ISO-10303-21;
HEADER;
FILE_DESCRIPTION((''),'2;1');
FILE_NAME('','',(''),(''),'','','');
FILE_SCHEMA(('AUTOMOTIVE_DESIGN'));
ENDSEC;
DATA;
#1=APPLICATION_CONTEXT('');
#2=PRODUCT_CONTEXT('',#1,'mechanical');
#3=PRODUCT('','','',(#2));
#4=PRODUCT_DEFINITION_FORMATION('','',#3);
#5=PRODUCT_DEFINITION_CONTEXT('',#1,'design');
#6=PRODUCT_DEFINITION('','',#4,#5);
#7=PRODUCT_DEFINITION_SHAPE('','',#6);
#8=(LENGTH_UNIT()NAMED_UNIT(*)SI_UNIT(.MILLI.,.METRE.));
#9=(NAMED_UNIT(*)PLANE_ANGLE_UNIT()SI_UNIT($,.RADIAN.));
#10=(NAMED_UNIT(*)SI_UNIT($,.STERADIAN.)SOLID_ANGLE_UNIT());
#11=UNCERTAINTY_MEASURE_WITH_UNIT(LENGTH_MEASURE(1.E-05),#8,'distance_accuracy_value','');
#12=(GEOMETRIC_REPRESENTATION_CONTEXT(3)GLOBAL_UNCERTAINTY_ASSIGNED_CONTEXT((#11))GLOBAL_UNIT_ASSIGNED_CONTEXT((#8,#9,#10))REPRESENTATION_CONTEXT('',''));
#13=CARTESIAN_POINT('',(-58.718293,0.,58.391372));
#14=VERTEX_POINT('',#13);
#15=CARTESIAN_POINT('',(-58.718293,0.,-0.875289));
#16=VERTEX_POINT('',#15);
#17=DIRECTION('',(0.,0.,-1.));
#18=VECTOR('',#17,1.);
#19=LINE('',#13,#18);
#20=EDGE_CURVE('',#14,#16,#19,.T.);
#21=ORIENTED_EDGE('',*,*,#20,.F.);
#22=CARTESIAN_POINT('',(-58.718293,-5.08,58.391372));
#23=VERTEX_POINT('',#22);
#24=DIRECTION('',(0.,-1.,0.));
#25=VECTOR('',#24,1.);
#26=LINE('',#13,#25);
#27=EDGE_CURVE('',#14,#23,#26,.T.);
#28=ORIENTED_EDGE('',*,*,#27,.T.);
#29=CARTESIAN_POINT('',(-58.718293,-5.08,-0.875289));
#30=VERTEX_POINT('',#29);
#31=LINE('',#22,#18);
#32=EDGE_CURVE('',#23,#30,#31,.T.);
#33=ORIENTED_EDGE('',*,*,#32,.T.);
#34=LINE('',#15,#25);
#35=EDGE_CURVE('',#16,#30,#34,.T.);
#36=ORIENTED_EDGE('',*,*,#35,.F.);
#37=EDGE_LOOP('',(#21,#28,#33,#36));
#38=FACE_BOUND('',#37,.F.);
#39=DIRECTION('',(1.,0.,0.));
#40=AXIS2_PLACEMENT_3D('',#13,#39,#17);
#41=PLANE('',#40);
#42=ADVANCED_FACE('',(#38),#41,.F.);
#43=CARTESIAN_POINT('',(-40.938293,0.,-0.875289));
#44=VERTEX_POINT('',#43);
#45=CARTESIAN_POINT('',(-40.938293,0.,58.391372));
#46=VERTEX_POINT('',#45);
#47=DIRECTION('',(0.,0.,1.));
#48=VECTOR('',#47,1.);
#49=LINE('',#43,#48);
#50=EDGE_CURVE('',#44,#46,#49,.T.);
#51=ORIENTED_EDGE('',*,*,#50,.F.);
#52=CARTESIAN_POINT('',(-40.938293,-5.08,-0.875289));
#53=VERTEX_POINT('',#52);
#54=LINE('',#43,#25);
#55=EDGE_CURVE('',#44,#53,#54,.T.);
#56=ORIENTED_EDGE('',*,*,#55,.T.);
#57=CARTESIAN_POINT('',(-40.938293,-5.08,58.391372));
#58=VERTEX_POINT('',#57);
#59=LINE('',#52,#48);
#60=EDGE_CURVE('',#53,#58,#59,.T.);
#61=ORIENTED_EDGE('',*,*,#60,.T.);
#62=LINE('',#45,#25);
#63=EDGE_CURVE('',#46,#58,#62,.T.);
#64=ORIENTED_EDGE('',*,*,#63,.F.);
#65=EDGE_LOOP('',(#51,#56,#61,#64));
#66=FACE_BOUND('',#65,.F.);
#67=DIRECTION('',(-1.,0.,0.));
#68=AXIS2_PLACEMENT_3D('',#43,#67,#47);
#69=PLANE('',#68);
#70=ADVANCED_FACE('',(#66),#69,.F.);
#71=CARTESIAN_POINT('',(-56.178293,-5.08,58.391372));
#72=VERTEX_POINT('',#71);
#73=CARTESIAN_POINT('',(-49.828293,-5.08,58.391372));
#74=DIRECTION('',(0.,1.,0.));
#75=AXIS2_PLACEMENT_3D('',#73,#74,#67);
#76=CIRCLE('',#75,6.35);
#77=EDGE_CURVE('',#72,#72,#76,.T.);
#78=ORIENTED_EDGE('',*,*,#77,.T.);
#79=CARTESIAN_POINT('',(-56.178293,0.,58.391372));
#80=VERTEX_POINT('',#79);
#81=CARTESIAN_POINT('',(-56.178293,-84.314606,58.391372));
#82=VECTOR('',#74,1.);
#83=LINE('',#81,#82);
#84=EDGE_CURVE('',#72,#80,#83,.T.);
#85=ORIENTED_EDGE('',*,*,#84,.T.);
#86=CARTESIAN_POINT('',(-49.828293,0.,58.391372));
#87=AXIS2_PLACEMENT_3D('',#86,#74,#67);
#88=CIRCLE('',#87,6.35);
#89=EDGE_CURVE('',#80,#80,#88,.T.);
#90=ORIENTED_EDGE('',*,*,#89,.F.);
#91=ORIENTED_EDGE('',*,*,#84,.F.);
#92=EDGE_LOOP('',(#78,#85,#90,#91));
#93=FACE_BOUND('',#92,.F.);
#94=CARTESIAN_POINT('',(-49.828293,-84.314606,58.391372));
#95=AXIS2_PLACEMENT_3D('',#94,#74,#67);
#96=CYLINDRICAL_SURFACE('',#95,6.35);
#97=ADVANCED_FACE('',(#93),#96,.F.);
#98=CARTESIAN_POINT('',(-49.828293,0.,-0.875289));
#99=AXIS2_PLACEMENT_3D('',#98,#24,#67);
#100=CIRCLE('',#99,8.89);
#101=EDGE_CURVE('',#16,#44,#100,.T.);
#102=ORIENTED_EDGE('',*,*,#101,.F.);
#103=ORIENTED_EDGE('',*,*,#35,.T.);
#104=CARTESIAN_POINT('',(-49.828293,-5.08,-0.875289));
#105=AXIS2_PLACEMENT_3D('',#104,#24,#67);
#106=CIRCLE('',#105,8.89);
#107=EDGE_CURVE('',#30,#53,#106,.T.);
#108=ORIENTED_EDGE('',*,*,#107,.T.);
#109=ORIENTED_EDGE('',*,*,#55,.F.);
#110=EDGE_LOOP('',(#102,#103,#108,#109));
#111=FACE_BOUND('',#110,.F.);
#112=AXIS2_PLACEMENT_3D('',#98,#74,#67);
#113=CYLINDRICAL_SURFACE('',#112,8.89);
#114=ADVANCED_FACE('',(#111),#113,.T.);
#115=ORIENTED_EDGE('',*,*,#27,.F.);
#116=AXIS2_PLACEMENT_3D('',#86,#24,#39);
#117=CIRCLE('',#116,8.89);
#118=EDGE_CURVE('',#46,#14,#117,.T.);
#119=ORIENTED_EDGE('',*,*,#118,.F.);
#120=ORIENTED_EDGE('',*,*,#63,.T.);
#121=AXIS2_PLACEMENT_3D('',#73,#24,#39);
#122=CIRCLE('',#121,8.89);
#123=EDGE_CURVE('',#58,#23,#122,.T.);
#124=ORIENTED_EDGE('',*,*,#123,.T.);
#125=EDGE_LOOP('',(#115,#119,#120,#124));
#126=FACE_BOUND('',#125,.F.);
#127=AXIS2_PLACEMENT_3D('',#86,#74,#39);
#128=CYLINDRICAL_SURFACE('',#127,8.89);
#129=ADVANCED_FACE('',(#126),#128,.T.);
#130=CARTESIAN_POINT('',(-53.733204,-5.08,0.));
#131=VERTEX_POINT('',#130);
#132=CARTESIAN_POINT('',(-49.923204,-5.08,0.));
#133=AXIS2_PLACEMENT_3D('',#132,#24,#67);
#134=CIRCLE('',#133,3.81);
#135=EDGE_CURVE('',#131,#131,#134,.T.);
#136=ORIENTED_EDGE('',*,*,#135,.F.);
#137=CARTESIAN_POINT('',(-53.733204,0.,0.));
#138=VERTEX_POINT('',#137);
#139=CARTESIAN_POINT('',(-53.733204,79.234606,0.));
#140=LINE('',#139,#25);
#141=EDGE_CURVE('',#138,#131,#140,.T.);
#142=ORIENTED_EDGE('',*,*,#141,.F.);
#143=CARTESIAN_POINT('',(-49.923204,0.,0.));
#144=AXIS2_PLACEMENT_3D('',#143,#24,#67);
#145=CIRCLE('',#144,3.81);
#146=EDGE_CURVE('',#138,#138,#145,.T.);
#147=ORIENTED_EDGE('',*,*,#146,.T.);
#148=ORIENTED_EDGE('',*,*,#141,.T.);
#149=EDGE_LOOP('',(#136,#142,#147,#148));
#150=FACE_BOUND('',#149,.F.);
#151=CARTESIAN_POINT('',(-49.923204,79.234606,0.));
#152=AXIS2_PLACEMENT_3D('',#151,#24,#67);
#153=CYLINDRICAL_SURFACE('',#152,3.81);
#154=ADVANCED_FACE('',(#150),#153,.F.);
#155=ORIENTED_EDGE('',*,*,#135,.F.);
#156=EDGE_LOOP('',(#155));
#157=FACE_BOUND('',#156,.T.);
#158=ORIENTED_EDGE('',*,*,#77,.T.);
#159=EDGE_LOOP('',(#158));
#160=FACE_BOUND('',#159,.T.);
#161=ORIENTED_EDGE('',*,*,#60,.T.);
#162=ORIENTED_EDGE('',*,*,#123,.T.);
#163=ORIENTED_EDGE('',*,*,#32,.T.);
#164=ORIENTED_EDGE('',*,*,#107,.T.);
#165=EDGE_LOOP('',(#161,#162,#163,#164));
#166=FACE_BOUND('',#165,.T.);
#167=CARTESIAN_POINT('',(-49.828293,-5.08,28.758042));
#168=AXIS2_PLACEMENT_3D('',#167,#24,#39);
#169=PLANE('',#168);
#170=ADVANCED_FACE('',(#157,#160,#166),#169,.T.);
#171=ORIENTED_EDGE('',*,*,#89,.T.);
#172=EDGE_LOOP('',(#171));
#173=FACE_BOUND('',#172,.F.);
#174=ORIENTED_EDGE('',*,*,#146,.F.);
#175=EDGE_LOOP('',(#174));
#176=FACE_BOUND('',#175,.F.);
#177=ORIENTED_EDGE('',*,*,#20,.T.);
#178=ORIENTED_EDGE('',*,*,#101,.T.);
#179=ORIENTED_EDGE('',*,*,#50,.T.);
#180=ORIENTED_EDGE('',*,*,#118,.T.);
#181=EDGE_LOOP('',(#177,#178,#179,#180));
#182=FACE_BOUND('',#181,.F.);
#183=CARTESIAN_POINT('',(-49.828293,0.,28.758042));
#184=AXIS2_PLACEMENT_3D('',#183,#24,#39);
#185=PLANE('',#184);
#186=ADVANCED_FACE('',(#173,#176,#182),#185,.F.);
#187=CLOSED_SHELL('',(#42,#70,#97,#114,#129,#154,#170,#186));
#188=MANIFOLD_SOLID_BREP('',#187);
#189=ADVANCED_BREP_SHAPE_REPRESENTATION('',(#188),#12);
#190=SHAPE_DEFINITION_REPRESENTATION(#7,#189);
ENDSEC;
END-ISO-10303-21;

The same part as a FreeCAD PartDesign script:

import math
import FreeCAD as App
import Part
import Sketcher
Q = App.Units.Quantity

doc = App.newDocument("Part")
body = doc.addObject("PartDesign::Body", "Body")

sketch1 = body.newObject("Sketcher::SketchObject", "Sketch")
sketch1.AttachmentSupport = (doc.getObject("XZ_Plane"), [""])
sketch1.MapMode = "FlatFace"
sketch1.addGeometry(Part.ArcOfCircle(Part.Circle(App.Vector(-50, 58, 0), App.Vector(0, 0, 1), 9), math.radians(0), math.radians(180)), False)
sketch1.addGeometry(Part.LineSegment(App.Vector(-59, 58, 0), App.Vector(-59, -1, 0)), False)
sketch1.addGeometry(Part.ArcOfCircle(Part.Circle(App.Vector(-50, -1, 0), App.Vector(0, 0, 1), 9), math.radians(180), math.radians(360)), False)
sketch1.addGeometry(Part.LineSegment(App.Vector(-41, -1, 0), App.Vector(-41, 58, 0)), False)
sketch1.addConstraint(Sketcher.Constraint("Tangent", 0, 2, 1, 1))
sketch1.addConstraint(Sketcher.Constraint("Tangent", 1, 2, 2, 1))
sketch1.addConstraint(Sketcher.Constraint("Tangent", 2, 2, 3, 1))
sketch1.addConstraint(Sketcher.Constraint("Tangent", 3, 2, 0, 1))
sketch1.addConstraint(Sketcher.Constraint("Vertical", 1))
sketch1.addConstraint(Sketcher.Constraint("Vertical", 3))
sketch1.addConstraint(Sketcher.Constraint("Radius", 0, Q("0.35 in")))
sketch1.addConstraint(Sketcher.Constraint("DistanceY", 1, 2, 1, 1, 59.266661))
sketch1.addConstraint(Sketcher.Constraint("DistanceY", -1, 1, 0, 3, 58.391372))
sketch1.addConstraint(Sketcher.Constraint("DistanceX", 0, 3, -1, 1, 49.828293))
pad1 = body.newObject("PartDesign::Pad", "Pad")
pad1.Profile = sketch1
pad1.Length = Q("0.2 in")

sketch2 = body.newObject("Sketcher::SketchObject", "Sketch001")
sketch2.AttachmentSupport = (doc.getObject("XZ_Plane"), [""])
sketch2.MapMode = "FlatFace"
sketch2.addGeometry(Part.Circle(App.Vector(-49.9, 0, 0), App.Vector(0, 0, 1), 3.8), False)
sketch2.addConstraint(Sketcher.Constraint("PointOnObject", 0, 3, -1))
sketch2.addConstraint(Sketcher.Constraint("Diameter", 0, Q("0.3 in")))
sketch2.addConstraint(Sketcher.Constraint("DistanceX", 0, 3, -1, 1, 49.923204))
doc.recompute()
hole = body.newObject("PartDesign::Hole", "Hole")
hole.Profile = sketch2
hole.ThreadType = "None"
hole.Diameter = Q("0.3 in")
hole.DepthType = "ThroughAll"
hole.Reversed = True

sketch3 = body.newObject("Sketcher::SketchObject", "Sketch002")
sketch3.AttachmentSupport = (doc.getObject("XZ_Plane"), [""])
sketch3.MapMode = "FlatFace"
sketch3.AttachmentOffset = App.Placement(App.Vector(0, 0, 0.2 * 25.4), App.Rotation())
sketch3.addGeometry(Part.Circle(App.Vector(-50, 58, 0), App.Vector(0, 0, 1), 6), False)
sketch3.addConstraint(Sketcher.Constraint("Diameter", 0, Q("0.5 in")))
sketch3.addConstraint(Sketcher.Constraint("DistanceY", -1, 1, 0, 3, 58.391372))
sketch3.addConstraint(Sketcher.Constraint("DistanceX", 0, 3, -1, 1, 49.828293))
doc.recompute()
hole2 = body.newObject("PartDesign::Hole", "Hole001")
hole2.Profile = sketch3
hole2.ThreadType = "None"
hole2.Diameter = Q("0.5 in")
hole2.DepthType = "ThroughAll"

doc.recompute()
